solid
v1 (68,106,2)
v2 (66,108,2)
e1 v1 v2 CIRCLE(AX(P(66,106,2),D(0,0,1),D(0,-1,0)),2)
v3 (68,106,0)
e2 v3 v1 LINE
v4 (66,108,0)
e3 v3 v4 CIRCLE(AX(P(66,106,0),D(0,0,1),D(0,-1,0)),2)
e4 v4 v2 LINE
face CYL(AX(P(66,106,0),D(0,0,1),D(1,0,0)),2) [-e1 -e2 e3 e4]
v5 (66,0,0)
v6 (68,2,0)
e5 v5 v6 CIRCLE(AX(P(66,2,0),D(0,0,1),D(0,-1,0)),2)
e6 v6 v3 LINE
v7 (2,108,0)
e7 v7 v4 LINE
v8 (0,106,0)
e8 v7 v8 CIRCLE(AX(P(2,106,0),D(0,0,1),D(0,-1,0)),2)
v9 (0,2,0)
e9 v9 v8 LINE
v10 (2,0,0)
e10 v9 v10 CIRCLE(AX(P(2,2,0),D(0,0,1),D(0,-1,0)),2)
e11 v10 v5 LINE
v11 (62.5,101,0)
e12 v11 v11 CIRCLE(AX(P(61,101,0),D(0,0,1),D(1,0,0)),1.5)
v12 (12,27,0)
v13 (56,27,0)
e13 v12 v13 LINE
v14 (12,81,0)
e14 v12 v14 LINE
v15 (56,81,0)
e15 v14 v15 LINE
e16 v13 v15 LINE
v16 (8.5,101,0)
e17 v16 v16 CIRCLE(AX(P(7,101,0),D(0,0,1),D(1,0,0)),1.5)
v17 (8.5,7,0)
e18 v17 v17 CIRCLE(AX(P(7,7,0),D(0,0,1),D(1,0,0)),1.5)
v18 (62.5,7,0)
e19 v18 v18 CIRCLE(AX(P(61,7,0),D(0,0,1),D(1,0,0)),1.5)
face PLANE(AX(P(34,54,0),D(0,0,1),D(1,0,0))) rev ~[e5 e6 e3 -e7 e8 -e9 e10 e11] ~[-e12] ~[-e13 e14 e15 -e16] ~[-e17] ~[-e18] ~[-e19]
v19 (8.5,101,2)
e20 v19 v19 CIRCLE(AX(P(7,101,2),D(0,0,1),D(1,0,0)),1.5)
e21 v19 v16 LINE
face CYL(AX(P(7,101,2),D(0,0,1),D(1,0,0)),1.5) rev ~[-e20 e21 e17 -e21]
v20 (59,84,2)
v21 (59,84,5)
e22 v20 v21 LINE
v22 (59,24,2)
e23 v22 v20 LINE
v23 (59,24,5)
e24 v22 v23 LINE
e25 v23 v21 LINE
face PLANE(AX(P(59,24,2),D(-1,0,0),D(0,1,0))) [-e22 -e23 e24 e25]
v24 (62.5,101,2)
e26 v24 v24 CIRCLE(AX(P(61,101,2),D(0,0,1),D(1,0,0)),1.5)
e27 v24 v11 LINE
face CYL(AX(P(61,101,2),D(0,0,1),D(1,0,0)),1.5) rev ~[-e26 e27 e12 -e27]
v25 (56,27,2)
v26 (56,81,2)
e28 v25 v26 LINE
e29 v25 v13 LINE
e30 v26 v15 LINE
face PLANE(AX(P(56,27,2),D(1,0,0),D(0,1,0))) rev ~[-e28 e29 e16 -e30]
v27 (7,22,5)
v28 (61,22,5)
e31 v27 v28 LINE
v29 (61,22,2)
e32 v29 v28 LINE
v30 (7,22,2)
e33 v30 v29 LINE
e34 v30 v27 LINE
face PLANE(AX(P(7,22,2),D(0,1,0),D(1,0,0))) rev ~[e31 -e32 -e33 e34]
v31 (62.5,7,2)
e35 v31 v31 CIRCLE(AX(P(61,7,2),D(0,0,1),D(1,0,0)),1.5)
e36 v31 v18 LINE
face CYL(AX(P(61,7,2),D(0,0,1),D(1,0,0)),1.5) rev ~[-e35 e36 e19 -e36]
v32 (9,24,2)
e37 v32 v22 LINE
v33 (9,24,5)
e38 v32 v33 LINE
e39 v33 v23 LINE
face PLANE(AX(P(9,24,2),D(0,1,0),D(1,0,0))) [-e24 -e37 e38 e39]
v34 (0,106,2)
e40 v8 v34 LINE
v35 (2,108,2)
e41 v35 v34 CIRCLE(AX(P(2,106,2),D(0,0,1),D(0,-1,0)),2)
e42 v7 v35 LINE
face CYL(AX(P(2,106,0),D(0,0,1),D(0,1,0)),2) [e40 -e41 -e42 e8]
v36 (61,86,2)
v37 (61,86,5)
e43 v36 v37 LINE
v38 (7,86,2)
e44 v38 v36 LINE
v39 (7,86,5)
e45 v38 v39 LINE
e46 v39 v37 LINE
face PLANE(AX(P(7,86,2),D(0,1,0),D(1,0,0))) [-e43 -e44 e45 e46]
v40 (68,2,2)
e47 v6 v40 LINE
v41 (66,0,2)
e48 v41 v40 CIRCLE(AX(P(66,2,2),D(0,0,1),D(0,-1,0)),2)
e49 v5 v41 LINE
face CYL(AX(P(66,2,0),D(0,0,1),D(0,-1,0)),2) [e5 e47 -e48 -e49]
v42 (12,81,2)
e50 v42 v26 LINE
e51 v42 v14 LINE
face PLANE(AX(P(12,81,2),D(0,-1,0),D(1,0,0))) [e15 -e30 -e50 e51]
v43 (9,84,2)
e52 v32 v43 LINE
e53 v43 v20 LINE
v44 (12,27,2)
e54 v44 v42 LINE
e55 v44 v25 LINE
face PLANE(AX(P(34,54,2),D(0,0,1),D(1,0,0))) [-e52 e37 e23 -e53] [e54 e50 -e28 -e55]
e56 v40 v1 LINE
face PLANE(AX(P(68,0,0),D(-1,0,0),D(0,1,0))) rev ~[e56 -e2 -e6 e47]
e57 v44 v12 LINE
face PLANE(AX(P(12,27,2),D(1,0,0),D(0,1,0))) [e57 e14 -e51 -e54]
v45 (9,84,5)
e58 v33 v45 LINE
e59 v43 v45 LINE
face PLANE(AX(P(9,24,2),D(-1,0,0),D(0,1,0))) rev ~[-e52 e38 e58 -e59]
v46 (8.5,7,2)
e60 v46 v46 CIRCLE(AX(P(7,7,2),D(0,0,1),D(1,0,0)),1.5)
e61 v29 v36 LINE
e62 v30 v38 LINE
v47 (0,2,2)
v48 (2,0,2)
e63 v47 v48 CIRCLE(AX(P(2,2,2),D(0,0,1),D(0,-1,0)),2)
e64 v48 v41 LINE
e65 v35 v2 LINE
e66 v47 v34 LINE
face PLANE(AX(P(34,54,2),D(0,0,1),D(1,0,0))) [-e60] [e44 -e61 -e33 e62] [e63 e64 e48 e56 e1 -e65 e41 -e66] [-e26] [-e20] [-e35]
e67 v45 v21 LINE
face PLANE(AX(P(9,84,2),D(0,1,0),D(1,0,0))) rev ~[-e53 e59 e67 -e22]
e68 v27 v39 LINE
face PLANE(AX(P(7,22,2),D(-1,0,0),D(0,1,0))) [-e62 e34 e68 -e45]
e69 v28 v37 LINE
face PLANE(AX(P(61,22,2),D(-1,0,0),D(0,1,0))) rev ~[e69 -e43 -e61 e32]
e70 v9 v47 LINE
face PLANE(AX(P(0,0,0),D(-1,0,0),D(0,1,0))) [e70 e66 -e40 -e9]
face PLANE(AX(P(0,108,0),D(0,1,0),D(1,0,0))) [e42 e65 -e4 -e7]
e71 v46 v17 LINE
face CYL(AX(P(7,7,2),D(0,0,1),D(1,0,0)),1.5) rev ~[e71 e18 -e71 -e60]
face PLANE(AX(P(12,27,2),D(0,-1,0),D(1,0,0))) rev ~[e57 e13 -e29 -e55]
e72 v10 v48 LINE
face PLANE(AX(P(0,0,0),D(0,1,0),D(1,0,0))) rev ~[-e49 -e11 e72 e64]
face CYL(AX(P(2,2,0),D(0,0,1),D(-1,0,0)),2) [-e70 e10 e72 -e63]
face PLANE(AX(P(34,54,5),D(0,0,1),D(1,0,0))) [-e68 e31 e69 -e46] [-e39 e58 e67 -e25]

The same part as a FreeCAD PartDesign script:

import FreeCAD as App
import Part
import Sketcher


def edges_at(feature, points):
    """Names of the edges that pass closest to the given points."""
    edges = feature.Shape.Edges
    near = lambda p: min(range(len(edges)), key=lambda i: edges[i].distToShape(Part.Vertex(*p))[0])
    return sorted({f"Edge{near(p) + 1}" for p in points})

doc = App.newDocument("Part")
body = doc.addObject("PartDesign::Body", "Body")

# Sketch on XY plane
sketch1 = doc.addObject("Sketcher::SketchObject", "Sketch")
body.addObject(sketch1)
sketch1.AttachmentSupport = (doc.XY_Plane, [""])
sketch1.MapMode = "FlatFace"
sketch1.addGeometry([
    Part.LineSegment(App.Vector(0, 108, 0), App.Vector(0, 0, 0)),
    Part.LineSegment(App.Vector(0, 0, 0), App.Vector(68, 0, 0)),
    Part.LineSegment(App.Vector(68, 0, 0), App.Vector(68, 108, 0)),
    Part.LineSegment(App.Vector(68, 108, 0), App.Vector(0, 108, 0)),
], False)
sketch1.addConstraint([
    Sketcher.Constraint("Coincident", 0, 2, 1, 1),
    Sketcher.Constraint("Coincident", 1, 2, 2, 1),
    Sketcher.Constraint("Coincident", 2, 2, 3, 1),
    Sketcher.Constraint("Coincident", 3, 2, 0, 1),
    Sketcher.Constraint("Vertical", 0),
    Sketcher.Constraint("Horizontal", 1),
    Sketcher.Constraint("Vertical", 2),
    Sketcher.Constraint("Horizontal", 3),
    Sketcher.Constraint("Coincident", 0, 2, -1, 1),
    Sketcher.Constraint("DistanceX", 1, 1, 1, 2, 68.0),
    Sketcher.Constraint("DistanceY", 0, 2, 0, 1, 108.0),
])
pad1 = doc.addObject("PartDesign::Pad", "Pad")
body.addObject(pad1)
pad1.Profile = sketch1
pad1.Length = 2

# Sketch on XY plane
sketch2 = doc.addObject("Sketcher::SketchObject", "Sketch001")
body.addObject(sketch2)
sketch2.AttachmentSupport = (doc.XY_Plane, [""])
sketch2.MapMode = "FlatFace"
sketch2.AttachmentOffset = App.Placement(App.Vector(0, 0, 2), App.Rotation())
sketch2.addGeometry([
    Part.Circle(App.Vector(7, 7, 0), App.Vector(0, 0, 1), 1.5),  # 0
    Part.Circle(App.Vector(61, 7, 0), App.Vector(0, 0, 1), 1.5),  # 1
    Part.Circle(App.Vector(7, 101, 0), App.Vector(0, 0, 1), 1.5),  # 2
    Part.Circle(App.Vector(61, 101, 0), App.Vector(0, 0, 1), 1.5),  # 3
    Part.LineSegment(App.Vector(12, 81, 0), App.Vector(12, 27, 0)),  # 4
    Part.LineSegment(App.Vector(12, 27, 0), App.Vector(56, 27, 0)),  # 5
    Part.LineSegment(App.Vector(56, 27, 0), App.Vector(56, 81, 0)),  # 6
    Part.LineSegment(App.Vector(56, 81, 0), App.Vector(12, 81, 0)),  # 7
], False)
sketch2.addConstraint([
    Sketcher.Constraint("Coincident", 4, 2, 5, 1),
    Sketcher.Constraint("Coincident", 5, 2, 6, 1),
    Sketcher.Constraint("Coincident", 6, 2, 7, 1),
    Sketcher.Constraint("Coincident", 7, 2, 4, 1),
    Sketcher.Constraint("Vertical", 4),
    Sketcher.Constraint("Horizontal", 5),
    Sketcher.Constraint("Vertical", 6),
    Sketcher.Constraint("Horizontal", 7),
    Sketcher.Constraint("Equal", 0, 1),
    Sketcher.Constraint("Equal", 1, 2),
    Sketcher.Constraint("Equal", 2, 3),
    Sketcher.Constraint("Horizontal", 0, 3, 1, 3),
    Sketcher.Constraint("Horizontal", 2, 3, 3, 3),
    Sketcher.Constraint("Vertical", 0, 3, 2, 3),
    Sketcher.Constraint("Vertical", 1, 3, 3, 3),
    Sketcher.Constraint("Diameter", 0, 3.0),
    Sketcher.Constraint("DistanceX", 5, 1, 5, 2, 44.0),
    Sketcher.Constraint("DistanceY", 4, 2, 4, 1, 54.0),
    Sketcher.Constraint("DistanceX", -1, 1, 0, 3, 7.0),
    Sketcher.Constraint("DistanceY", -1, 1, 0, 3, 7.0),
    Sketcher.Constraint("DistanceX", -1, 1, 1, 3, 61.0),
    Sketcher.Constraint("DistanceY", -1, 1, 2, 3, 101.0),
    Sketcher.Constraint("DistanceX", -1, 1, 4, 2, 12.0),
    Sketcher.Constraint("DistanceY", -1, 1, 4, 2, 27.0),
])
pocket1 = doc.addObject("PartDesign::Pocket", "Pocket")
body.addObject(pocket1)
pocket1.Profile = sketch2
pocket1.Length = 3
doc.recompute()

fillet = doc.addObject("PartDesign::Fillet", "Fillet")
body.addObject(fillet)
fillet.Base = (pocket1, edges_at(pocket1, [(0, 0, 1)]))
fillet.Radius = 2
doc.recompute()

fillet2 = doc.addObject("PartDesign::Fillet", "Fillet001")
body.addObject(fillet2)
fillet2.Base = (fillet, edges_at(fillet, [(68, 0, 1)]))
fillet2.Radius = 2
doc.recompute()

fillet3 = doc.addObject("PartDesign::Fillet", "Fillet002")
body.addObject(fillet3)
fillet3.Base = (fillet2, edges_at(fillet2, [(68, 108, 1)]))
fillet3.Radius = 2
doc.recompute()

fillet4 = doc.addObject("PartDesign::Fillet", "Fillet003")
body.addObject(fillet4)
fillet4.Base = (fillet3, edges_at(fillet3, [(0, 108, 1)]))
fillet4.Radius = 2

# Sketch on XY plane
sketch3 = doc.addObject("Sketcher::SketchObject", "Sketch002")
body.addObject(sketch3)
sketch3.AttachmentSupport = (doc.XY_Plane, [""])
sketch3.MapMode = "FlatFace"
sketch3.AttachmentOffset = App.Placement(App.Vector(0, 0, 2), App.Rotation())
sketch3.addGeometry([
    Part.LineSegment(App.Vector(7, 86, 0), App.Vector(7, 22, 0)),  # 0
    Part.LineSegment(App.Vector(7, 22, 0), App.Vector(61, 22, 0)),  # 1
    Part.LineSegment(App.Vector(61, 22, 0), App.Vector(61, 86, 0)),  # 2
    Part.LineSegment(App.Vector(61, 86, 0), App.Vector(7, 86, 0)),  # 3
    Part.LineSegment(App.Vector(59, 24, 0), App.Vector(9, 24, 0)),  # 4
    Part.LineSegment(App.Vector(9, 24, 0), App.Vector(9, 84, 0)),  # 5
    Part.LineSegment(App.Vector(9, 84, 0), App.Vector(59, 84, 0)),  # 6
    Part.LineSegment(App.Vector(59, 84, 0), App.Vector(59, 24, 0)),  # 7
], False)
sketch3.addConstraint([
    Sketcher.Constraint("Coincident", 0, 2, 1, 1),
    Sketcher.Constraint("Coincident", 1, 2, 2, 1),
    Sketcher.Constraint("Coincident", 2, 2, 3, 1),
    Sketcher.Constraint("Coincident", 3, 2, 0, 1),
    Sketcher.Constraint("Coincident", 4, 2, 5, 1),
    Sketcher.Constraint("Coincident", 5, 2, 6, 1),
    Sketcher.Constraint("Coincident", 6, 2, 7, 1),
    Sketcher.Constraint("Coincident", 7, 2, 4, 1),
    Sketcher.Constraint("Vertical", 0),
    Sketcher.Constraint("Horizontal", 1),
    Sketcher.Constraint("Vertical", 2),
    Sketcher.Constraint("Horizontal", 3),
    Sketcher.Constraint("Horizontal", 4),
    Sketcher.Constraint("Vertical", 5),
    Sketcher.Constraint("Horizontal", 6),
    Sketcher.Constraint("Vertical", 7),
    Sketcher.Constraint("DistanceX", 1, 1, 1, 2, 54.0),
    Sketcher.Constraint("DistanceX", 4, 2, 4, 1, 50.0),
    Sketcher.Constraint("DistanceY", 0, 2, 0, 1, 64.0),
    Sketcher.Constraint("DistanceY", 5, 1, 5, 2, 60.0),
    Sketcher.Constraint("DistanceX", -1, 1, 0, 2, 7.0),
    Sketcher.Constraint("DistanceY", -1, 1, 0, 2, 22.0),
    Sketcher.Constraint("DistanceX", -1, 1, 4, 2, 9.0),
    Sketcher.Constraint("DistanceY", -1, 1, 4, 2, 24.0),
])
pad2 = doc.addObject("PartDesign::Pad", "Pad001")
body.addObject(pad2)
pad2.Profile = sketch3
pad2.Length = 3

doc.recompute()
